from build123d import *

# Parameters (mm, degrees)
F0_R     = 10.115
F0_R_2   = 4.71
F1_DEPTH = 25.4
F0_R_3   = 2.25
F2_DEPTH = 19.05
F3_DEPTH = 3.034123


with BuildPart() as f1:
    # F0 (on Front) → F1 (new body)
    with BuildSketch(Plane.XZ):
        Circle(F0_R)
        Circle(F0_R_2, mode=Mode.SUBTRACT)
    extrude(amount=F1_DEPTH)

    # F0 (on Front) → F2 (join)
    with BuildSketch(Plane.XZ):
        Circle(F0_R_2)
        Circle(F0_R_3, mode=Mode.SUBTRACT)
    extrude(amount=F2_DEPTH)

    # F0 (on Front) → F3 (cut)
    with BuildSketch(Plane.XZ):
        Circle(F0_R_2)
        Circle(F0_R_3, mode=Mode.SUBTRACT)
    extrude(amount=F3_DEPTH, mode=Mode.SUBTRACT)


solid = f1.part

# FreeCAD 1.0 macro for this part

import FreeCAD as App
import Part
import Sketcher

V = App.Vector
Q = App.Units.Quantity

doc = App.newDocument("Part")
body = doc.addObject("PartDesign::Body", "Body")

# Sketch on XZ plane
sketch1 = body.newObject("Sketcher::SketchObject", "Sketch")
sketch1.AttachmentSupport = (doc.getObject("XZ_Plane"), [""])
sketch1.MapMode = "FlatFace"
sketch1.addGeometry([
    Part.Circle(V(0, 0, 0), V(0, 0, 1), 10.1),
    Part.Circle(V(0, 0, 0), V(0, 0, 1), 4.7),
], False)
sketch1.addConstraint([
    Sketcher.Constraint("Coincident", 0, 3, -1, 1),
    Sketcher.Constraint("Coincident", 1, 3, -1, 1),
    Sketcher.Constraint("Diameter", 0, 20.23),
    Sketcher.Constraint("Diameter", 1, 9.42),
])
pad1 = body.newObject("PartDesign::Pad", "Pad")
pad1.Profile = sketch1
pad1.Length = Q("1 in")

# Sketch on XZ plane
sketch2 = body.newObject("Sketcher::SketchObject", "Sketch001")
sketch2.AttachmentSupport = (doc.getObject("XZ_Plane"), [""])
sketch2.MapMode = "FlatFace"
sketch2.addGeometry([
    Part.Circle(V(0, 0, 0), V(0, 0, 1), 4.7),
    Part.Circle(V(0, 0, 0), V(0, 0, 1), 2.2),
], False)
sketch2.addConstraint([
    Sketcher.Constraint("Coincident", 0, 3, -1, 1),
    Sketcher.Constraint("Coincident", 1, 3, -1, 1),
    Sketcher.Constraint("Diameter", 0, 9.42),
    Sketcher.Constraint("Diameter", 1, 4.5),
])
pad2 = body.newObject("PartDesign::Pad", "Pad001")
pad2.Profile = sketch2
pad2.Length = Q("0.75 in")

# Sketch on XZ plane
sketch3 = body.newObject("Sketcher::SketchObject", "Sketch002")
sketch3.AttachmentSupport = (doc.getObject("XZ_Plane"), [""])
sketch3.MapMode = "FlatFace"
sketch3.addGeometry([
    Part.Circle(V(0, 0, 0), V(0, 0, 1), 4.7),
    Part.Circle(V(0, 0, 0), V(0, 0, 1), 2.2),
], False)
sketch3.addConstraint([
    Sketcher.Constraint("Coincident", 0, 3, -1, 1),
    Sketcher.Constraint("Coincident", 1, 3, -1, 1),
    Sketcher.Constraint("Diameter", 0, 9.42),
    Sketcher.Constraint("Diameter", 1, 4.5),
])
pocket1 = body.newObject("PartDesign::Pocket", "Pocket")
pocket1.Profile = sketch3
pocket1.Length = 3.034123
pocket1.Reversed = True

doc.recompute()
